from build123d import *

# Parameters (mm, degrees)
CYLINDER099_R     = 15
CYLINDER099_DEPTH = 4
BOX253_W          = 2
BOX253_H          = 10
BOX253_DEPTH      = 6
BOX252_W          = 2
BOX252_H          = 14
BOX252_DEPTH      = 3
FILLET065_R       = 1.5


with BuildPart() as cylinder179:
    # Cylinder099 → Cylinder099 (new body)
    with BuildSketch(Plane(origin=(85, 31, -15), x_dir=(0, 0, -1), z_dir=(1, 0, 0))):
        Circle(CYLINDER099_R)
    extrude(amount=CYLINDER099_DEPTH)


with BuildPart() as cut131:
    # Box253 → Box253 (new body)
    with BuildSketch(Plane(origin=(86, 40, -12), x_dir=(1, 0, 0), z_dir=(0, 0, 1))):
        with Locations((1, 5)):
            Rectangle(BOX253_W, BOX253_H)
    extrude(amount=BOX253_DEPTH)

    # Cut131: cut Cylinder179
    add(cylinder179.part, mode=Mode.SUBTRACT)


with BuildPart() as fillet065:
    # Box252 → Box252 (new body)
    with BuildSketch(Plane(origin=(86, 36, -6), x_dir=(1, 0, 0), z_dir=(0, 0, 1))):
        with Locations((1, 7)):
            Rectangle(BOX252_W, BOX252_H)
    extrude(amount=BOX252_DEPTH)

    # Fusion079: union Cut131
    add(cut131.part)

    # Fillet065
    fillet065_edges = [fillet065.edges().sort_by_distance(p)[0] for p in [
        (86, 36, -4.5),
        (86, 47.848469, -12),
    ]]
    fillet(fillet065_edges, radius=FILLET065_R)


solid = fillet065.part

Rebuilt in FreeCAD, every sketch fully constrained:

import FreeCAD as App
import Part
import Sketcher
Q = App.Units.Quantity


def edges_at(feature, points):
    """Names of the edges that pass closest to the given points."""
    edges = feature.Shape.Edges
    near = lambda p: min(range(len(edges)), key=lambda i: edges[i].distToShape(Part.Vertex(*p))[0])
    return sorted({f"Edge{near(p) + 1}" for p in points})


def add_polygon(sketch, points):
    """Adds a closed chain of lines whose ends are joined by coincident constraints."""
    first, n = sketch.GeometryCount, len(points)
    for a, b in zip(points, points[1:] + points[:1]):
        sketch.addGeometry(Part.LineSegment(App.Vector(*a, 0), App.Vector(*b, 0)), False)
    for i in range(n):
        sketch.addConstraint(Sketcher.Constraint("Coincident", first + i, 2, first + (i + 1) % n, 1))

doc = App.newDocument("Part")
params = doc.addObject("Spreadsheet::Sheet", "Params")
for row, (alias, value) in enumerate([
    ("sketch1_diameter", "30 mm"),
    ("pad1_length", "4 mm"),
    ("sketch2_width", "2 mm"),
    ("sketch2_height", "10 mm"),
    ("pad2_length", "6 mm"),
    ("sketch3_width", "2 mm"),
    ("sketch3_height", "14 mm"),
    ("pad3_length", "3 mm"),
    ("fillet_radius", "1.5 mm"),
], start=1):
    params.set(f"A{row}", alias)
    params.set(f"B{row}", "=" + value)
    params.setAlias(f"B{row}", alias)

body = doc.addObject("PartDesign::Body", "Body")

sketch1 = body.newObject("Sketcher::SketchObject", "Sketch")
sketch1.AttachmentSupport = (doc.getObject("YZ_Plane"), [""])
sketch1.MapMode = "FlatFace"
sketch1.AttachmentOffset = App.Placement(App.Vector(0, 0, 85), App.Rotation())
sketch1.addGeometry(Part.Circle(App.Vector(31, -15, 0), App.Vector(0, 0, 1), 15), False)
sketch1.addConstraint([
    Sketcher.Constraint("Diameter", 0, Q("30 mm")),
    Sketcher.Constraint("DistanceX", -1, 1, 0, 3, Q("31 mm")),
    Sketcher.Constraint("DistanceY", 0, 3, -1, 1, Q("15 mm")),
])
sketch1.setExpression("Constraints[0]", "Params.sketch1_diameter")
pad1 = body.newObject("PartDesign::Pad", "Pad")
pad1.Profile = sketch1
pad1.setExpression("Length", "Params.pad1_length")
body2 = doc.addObject("PartDesign::Body", "Body001")

sketch2 = body2.newObject("Sketcher::SketchObject", "Sketch001")
sketch2.AttachmentSupport = (doc.getObject("XY_Plane001"), [""])
sketch2.MapMode = "FlatFace"
sketch2.AttachmentOffset = App.Placement(App.Vector(0, 0, -12), App.Rotation())
add_polygon(sketch2, [(86, 50), (86, 40), (88, 40), (88, 50)])
sketch2.addConstraint([
    Sketcher.Constraint("Vertical", 0),
    Sketcher.Constraint("Horizontal", 1),
    Sketcher.Constraint("Vertical", 2),
    Sketcher.Constraint("Horizontal", 3),
    Sketcher.Constraint("DistanceX", 1, 1, 1, 2, Q("2 mm")),
    Sketcher.Constraint("DistanceY", 0, 2, 0, 1, Q("10 mm")),
    Sketcher.Constraint("DistanceX", -1, 1, 0, 2, Q("86 mm")),
    Sketcher.Constraint("DistanceY", -1, 1, 0, 2, Q("40 mm")),
])
sketch2.setExpression("Constraints[8]", "Params.sketch2_width")
sketch2.setExpression("Constraints[9]", "Params.sketch2_height")
pad2 = body2.newObject("PartDesign::Pad", "Pad001")
pad2.Profile = sketch2
pad2.setExpression("Length", "Params.pad2_length")
doc.recompute()

boolean = body2.newObject("PartDesign::Boolean", "Boolean")
boolean.Type = "Cut"
boolean.addObjects([body])
body3 = doc.addObject("PartDesign::Body", "Body002")

sketch3 = body3.newObject("Sketcher::SketchObject", "Sketch002")
sketch3.AttachmentSupport = (doc.getObject("XY_Plane002"), [""])
sketch3.MapMode = "FlatFace"
sketch3.AttachmentOffset = App.Placement(App.Vector(0, 0, -6), App.Rotation())
add_polygon(sketch3, [(86, 50), (86, 36), (88, 36), (88, 50)])
sketch3.addConstraint([
    Sketcher.Constraint("Vertical", 0),
    Sketcher.Constraint("Horizontal", 1),
    Sketcher.Constraint("Vertical", 2),
    Sketcher.Constraint("Horizontal", 3),
    Sketcher.Constraint("DistanceX", 1, 1, 1, 2, Q("2 mm")),
    Sketcher.Constraint("DistanceY", 0, 2, 0, 1, Q("14 mm")),
    Sketcher.Constraint("DistanceX", -1, 1, 0, 2, Q("86 mm")),
    Sketcher.Constraint("DistanceY", -1, 1, 0, 2, Q("36 mm")),
])
sketch3.setExpression("Constraints[8]", "Params.sketch3_width")
sketch3.setExpression("Constraints[9]", "Params.sketch3_height")
pad3 = body3.newObject("PartDesign::Pad", "Pad002")
pad3.Profile = sketch3
pad3.setExpression("Length", "Params.pad3_length")
doc.recompute()

boolean2 = body3.newObject("PartDesign::Boolean", "Boolean001")
boolean2.Type = "Fuse"
boolean2.addObjects([body2])
doc.recompute()

fillet = body3.newObject("PartDesign::Fillet", "Fillet")
fillet.Base = (boolean2, edges_at(boolean2, [(86, 36, -4.5), (86, 47.848, -12)]))
fillet.setExpression("Radius", "Params.fillet_radius")

doc.recompute()
